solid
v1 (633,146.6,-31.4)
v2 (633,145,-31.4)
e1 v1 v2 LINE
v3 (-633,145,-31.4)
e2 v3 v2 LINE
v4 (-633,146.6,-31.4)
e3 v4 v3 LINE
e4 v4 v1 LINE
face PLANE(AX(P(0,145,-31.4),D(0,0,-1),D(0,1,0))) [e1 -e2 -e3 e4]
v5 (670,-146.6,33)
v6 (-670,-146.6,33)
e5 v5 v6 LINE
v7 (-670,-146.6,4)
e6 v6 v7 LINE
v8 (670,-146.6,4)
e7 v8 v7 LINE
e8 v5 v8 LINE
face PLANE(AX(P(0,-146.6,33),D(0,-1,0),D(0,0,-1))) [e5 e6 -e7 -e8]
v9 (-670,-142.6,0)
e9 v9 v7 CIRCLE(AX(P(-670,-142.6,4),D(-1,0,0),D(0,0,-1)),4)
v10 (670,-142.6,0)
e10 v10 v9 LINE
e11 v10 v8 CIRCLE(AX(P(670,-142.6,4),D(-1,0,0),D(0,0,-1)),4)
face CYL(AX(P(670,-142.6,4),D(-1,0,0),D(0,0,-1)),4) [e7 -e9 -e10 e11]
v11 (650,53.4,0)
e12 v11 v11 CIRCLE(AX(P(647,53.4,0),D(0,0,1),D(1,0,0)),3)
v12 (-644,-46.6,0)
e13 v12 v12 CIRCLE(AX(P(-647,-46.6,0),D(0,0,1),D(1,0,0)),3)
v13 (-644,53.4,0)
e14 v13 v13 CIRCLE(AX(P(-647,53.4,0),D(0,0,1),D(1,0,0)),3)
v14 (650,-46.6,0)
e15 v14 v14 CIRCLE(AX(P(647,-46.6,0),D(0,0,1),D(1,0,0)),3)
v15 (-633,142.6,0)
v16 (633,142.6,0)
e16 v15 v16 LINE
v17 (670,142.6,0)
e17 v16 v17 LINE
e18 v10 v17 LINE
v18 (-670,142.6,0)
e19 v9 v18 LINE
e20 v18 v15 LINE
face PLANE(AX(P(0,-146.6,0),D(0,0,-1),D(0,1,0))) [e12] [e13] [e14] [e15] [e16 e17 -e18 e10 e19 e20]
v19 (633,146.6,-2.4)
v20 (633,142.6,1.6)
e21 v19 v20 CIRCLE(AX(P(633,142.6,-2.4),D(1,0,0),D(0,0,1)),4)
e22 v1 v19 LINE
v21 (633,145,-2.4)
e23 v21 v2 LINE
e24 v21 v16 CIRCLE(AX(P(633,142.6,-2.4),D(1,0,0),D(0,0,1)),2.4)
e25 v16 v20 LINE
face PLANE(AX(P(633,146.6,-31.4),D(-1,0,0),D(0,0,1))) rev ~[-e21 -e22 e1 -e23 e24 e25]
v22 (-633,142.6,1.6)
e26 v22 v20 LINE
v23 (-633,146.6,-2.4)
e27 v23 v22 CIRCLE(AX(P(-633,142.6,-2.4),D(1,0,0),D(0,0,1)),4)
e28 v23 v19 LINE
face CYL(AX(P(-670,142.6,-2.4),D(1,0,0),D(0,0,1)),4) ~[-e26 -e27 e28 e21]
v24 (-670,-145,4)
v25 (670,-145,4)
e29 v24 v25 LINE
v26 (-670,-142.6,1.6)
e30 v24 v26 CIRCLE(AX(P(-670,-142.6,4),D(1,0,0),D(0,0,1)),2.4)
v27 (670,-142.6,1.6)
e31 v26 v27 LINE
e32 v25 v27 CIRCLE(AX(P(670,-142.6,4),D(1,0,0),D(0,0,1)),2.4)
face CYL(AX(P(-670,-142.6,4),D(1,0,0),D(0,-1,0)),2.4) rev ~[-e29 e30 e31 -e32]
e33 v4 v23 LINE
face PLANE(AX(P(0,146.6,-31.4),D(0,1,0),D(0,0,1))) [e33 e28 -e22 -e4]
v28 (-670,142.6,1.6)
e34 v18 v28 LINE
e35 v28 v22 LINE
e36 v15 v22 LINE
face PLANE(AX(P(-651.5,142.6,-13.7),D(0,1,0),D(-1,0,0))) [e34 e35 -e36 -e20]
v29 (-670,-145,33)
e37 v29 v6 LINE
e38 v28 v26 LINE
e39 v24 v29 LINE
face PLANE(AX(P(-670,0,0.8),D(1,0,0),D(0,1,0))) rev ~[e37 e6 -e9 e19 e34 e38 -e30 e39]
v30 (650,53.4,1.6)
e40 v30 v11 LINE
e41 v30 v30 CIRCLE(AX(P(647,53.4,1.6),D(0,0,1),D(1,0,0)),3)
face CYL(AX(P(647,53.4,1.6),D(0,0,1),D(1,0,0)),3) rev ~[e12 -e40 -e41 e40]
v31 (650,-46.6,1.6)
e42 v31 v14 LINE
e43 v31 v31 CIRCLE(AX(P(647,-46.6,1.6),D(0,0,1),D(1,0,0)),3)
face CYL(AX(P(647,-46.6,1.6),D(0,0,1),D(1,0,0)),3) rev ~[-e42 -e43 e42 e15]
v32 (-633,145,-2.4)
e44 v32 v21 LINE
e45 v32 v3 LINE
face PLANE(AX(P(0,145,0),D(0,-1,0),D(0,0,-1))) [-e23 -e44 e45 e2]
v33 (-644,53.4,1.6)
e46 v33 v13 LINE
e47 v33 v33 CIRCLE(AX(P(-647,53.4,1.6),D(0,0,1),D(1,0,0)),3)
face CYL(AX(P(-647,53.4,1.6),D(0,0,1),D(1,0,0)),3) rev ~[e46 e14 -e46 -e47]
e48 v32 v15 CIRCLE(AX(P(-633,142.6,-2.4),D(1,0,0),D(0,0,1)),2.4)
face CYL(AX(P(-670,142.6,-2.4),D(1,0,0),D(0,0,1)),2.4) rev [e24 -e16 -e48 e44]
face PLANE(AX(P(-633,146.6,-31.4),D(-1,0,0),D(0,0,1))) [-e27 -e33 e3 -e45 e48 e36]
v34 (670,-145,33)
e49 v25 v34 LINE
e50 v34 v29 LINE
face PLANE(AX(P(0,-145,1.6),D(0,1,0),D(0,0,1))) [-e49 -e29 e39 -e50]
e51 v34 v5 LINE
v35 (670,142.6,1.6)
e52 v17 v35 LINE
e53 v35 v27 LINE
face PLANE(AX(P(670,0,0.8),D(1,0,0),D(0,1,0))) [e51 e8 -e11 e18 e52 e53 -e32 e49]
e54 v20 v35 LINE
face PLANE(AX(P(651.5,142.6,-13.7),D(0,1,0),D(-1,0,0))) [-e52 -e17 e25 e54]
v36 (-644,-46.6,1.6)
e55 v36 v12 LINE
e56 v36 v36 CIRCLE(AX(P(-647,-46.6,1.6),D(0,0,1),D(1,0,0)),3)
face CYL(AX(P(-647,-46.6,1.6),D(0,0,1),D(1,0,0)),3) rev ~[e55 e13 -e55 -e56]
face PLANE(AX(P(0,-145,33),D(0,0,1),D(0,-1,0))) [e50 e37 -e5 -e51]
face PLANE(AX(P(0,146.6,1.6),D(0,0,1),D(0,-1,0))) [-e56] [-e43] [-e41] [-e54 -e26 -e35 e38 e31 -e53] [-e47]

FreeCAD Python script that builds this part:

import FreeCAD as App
import Part
import Sketcher
from FreeCAD import Vector
Q = App.Units.Quantity


def edges_at(feature, points):
    """Names of the edges that pass closest to the given points."""
    edges = feature.Shape.Edges
    near = lambda p: min(range(len(edges)), key=lambda i: edges[i].distToShape(Part.Vertex(*p))[0])
    return sorted({f"Edge{near(p) + 1}" for p in points})

doc = App.newDocument("Part")
body = doc.addObject("PartDesign::Body", "Body")

sketch1 = body.newObject("Sketcher::SketchObject", "Sketch")
sketch1.AttachmentSupport = (doc.getObject("YZ_Plane"), [""])
sketch1.MapMode = "FlatFace"
sketch1.addGeometry(Part.LineSegment(Vector(-146.6, 0, 0), Vector(145, 0, 0)), False)
sketch1.addGeometry(Part.LineSegment(Vector(145, 0, 0), Vector(145, -31.4, 0)), False)
sketch1.addGeometry(Part.LineSegment(Vector(145, -31.4, 0), Vector(146.6, -31.4, 0)), False)
sketch1.addGeometry(Part.LineSegment(Vector(146.6, -31.4, 0), Vector(146.6, 1.6, 0)), False)
sketch1.addGeometry(Part.LineSegment(Vector(146.6, 1.6, 0), Vector(-145, 1.6, 0)), False)
sketch1.addGeometry(Part.LineSegment(Vector(-145, 1.6, 0), Vector(-145, 33, 0)), False)
sketch1.addGeometry(Part.LineSegment(Vector(-145, 33, 0), Vector(-146.6, 33, 0)), False)
sketch1.addGeometry(Part.LineSegment(Vector(-146.6, 33, 0), Vector(-146.6, 0, 0)), False)
sketch1.addConstraint(Sketcher.Constraint("Coincident", 0, 2, 1, 1))
sketch1.addConstraint(Sketcher.Constraint("Coincident", 1, 2, 2, 1))
sketch1.addConstraint(Sketcher.Constraint("Coincident", 2, 2, 3, 1))
sketch1.addConstraint(Sketcher.Constraint("Coincident", 3, 2, 4, 1))
sketch1.addConstraint(Sketcher.Constraint("Coincident", 4, 2, 5, 1))
sketch1.addConstraint(Sketcher.Constraint("Coincident", 5, 2, 6, 1))
sketch1.addConstraint(Sketcher.Constraint("Coincident", 6, 2, 7, 1))
sketch1.addConstraint(Sketcher.Constraint("Coincident", 7, 2, 0, 1))
sketch1.addConstraint(Sketcher.Constraint("Horizontal", 0))
sketch1.addConstraint(Sketcher.Constraint("Vertical", 1))
sketch1.addConstraint(Sketcher.Constraint("Horizontal", 2))
sketch1.addConstraint(Sketcher.Constraint("Vertical", 3))
sketch1.addConstraint(Sketcher.Constraint("Horizontal", 4))
sketch1.addConstraint(Sketcher.Constraint("Vertical", 5))
sketch1.addConstraint(Sketcher.Constraint("Horizontal", 6))
sketch1.addConstraint(Sketcher.Constraint("Vertical", 7))
sketch1.addConstraint(Sketcher.Constraint("PointOnObject", 0, 2, -1))
sketch1.addConstraint(Sketcher.Constraint("Equal", 0, 4))
sketch1.addConstraint(Sketcher.Constraint("Equal", 1, 5))
sketch1.addConstraint(Sketcher.Constraint("DistanceY", 3, 1, 3, 2, Q("33 mm")))
sketch1.addConstraint(Sketcher.Constraint("DistanceX", 0, 1, 0, 2, Q("291.6 mm")))
sketch1.addConstraint(Sketcher.Constraint("DistanceX", 2, 1, 2, 2, Q("1.6 mm")))
sketch1.addConstraint(Sketcher.Constraint("DistanceY", 1, 2, 1, 1, Q("31.4 mm")))
sketch1.addConstraint(Sketcher.Constraint("DistanceX", -1, 1, 0, 2, Q("145 mm")))
pad1 = body.newObject("PartDesign::Pad", "Pad")
pad1.Profile = sketch1
pad1.Length = 1340
pad1.Midplane = True
doc.recompute()

fillet = body.newObject("PartDesign::Fillet", "Fillet")
fillet.Base = (pad1, edges_at(pad1, [(0, -146.6, 0), (0, 146.6, 1.6)]))
fillet.Radius = 4
doc.recompute()

fillet2 = body.newObject("PartDesign::Fillet", "Fillet001")
fillet2.Base = (fillet, edges_at(fillet, [(0, -145, 1.6), (0, 145, 0)]))
fillet2.Radius = 2.4

sketch2 = body.newObject("Sketcher::SketchObject", "Sketch001")
sketch2.AttachmentSupport = (doc.getObject("XZ_Plane"), [""])
sketch2.MapMode = "FlatFace"
sketch2.AttachmentOffset = App.Placement(Vector(0, 0, -146.6), App.Rotation())
sketch2.addGeometry(Part.LineSegment(Vector(670, 4, 0), Vector(670, -31, 0)), False)
sketch2.addGeometry(Part.LineSegment(Vector(670, -31, 0), Vector(633, -31, 0)), False)
sketch2.addGeometry(Part.LineSegment(Vector(633, -31, 0), Vector(633, 4, 0)), False)
sketch2.addGeometry(Part.LineSegment(Vector(633, 4, 0), Vector(670, 4, 0)), False)
sketch2.addGeometry(Part.LineSegment(Vector(-633, 4, 0), Vector(-633, -31, 0)), False)
sketch2.addGeometry(Part.LineSegment(Vector(-633, -31, 0), Vector(-670, -31, 0)), False)
sketch2.addGeometry(Part.LineSegment(Vector(-670, -31, 0), Vector(-670, 4, 0)), False)
sketch2.addGeometry(Part.LineSegment(Vector(-670, 4, 0), Vector(-633, 4, 0)), False)
sketch2.addConstraint(Sketcher.Constraint("Coincident", 0, 2, 1, 1))
sketch2.addConstraint(Sketcher.Constraint("Coincident", 1, 2, 2, 1))
sketch2.addConstraint(Sketcher.Constraint("Coincident", 2, 2, 3, 1))
sketch2.addConstraint(Sketcher.Constraint("Coincident", 3, 2, 0, 1))
sketch2.addConstraint(Sketcher.Constraint("Coincident", 4, 2, 5, 1))
sketch2.addConstraint(Sketcher.Constraint("Coincident", 5, 2, 6, 1))
sketch2.addConstraint(Sketcher.Constraint("Coincident", 6, 2, 7, 1))
sketch2.addConstraint(Sketcher.Constraint("Coincident", 7, 2, 4, 1))
sketch2.addConstraint(Sketcher.Constraint("Vertical", 0))
sketch2.addConstraint(Sketcher.Constraint("Horizontal", 1))
sketch2.addConstraint(Sketcher.Constraint("Vertical", 2))
sketch2.addConstraint(Sketcher.Constraint("Horizontal", 3))
sketch2.addConstraint(Sketcher.Constraint("Vertical", 4))
sketch2.addConstraint(Sketcher.Constraint("Horizontal", 5))
sketch2.addConstraint(Sketcher.Constraint("Vertical", 6))
sketch2.addConstraint(Sketcher.Constraint("Horizontal", 7))
sketch2.addConstraint(Sketcher.Constraint("Symmetric", 1, 2, 4, 2, -2))
sketch2.addConstraint(Sketcher.Constraint("Symmetric", 3, 2, 6, 2, -2))
sketch2.addConstraint(Sketcher.Constraint("DistanceX", 1, 2, 1, 1, Q("37 mm")))
sketch2.addConstraint(Sketcher.Constraint("DistanceY", 0, 2, 0, 1, Q("35.4 mm")))
sketch2.addConstraint(Sketcher.Constraint("DistanceX", -1, 1, 0, 2, Q("670 mm")))
sketch2.addConstraint(Sketcher.Constraint("DistanceY", -1, 1, 2, 2, Q("4 mm")))
pocket1 = body.newObject("PartDesign::Pocket", "Pocket")
pocket1.Profile = sketch2
pocket1.Length = 4
pocket1.Reversed = True

sketch3 = body.newObject("Sketcher::SketchObject", "Sketch002")
sketch3.AttachmentSupport = (doc.getObject("XY_Plane"), [""])
sketch3.MapMode = "FlatFace"
sketch3.AttachmentOffset = App.Placement(Vector(0, 0, 1.6), App.Rotation())
sketch3.addGeometry(Part.Circle(Vector(-647, -46.6, 0), Vector(0, 0, 1), 3), False)
sketch3.addGeometry(Part.Circle(Vector(-647, 53.4, 0), Vector(0, 0, 1), 3), False)
sketch3.addGeometry(Part.Circle(Vector(647, 53.4, 0), Vector(0, 0, 1), 3), False)
sketch3.addGeometry(Part.Circle(Vector(647, -46.6, 0), Vector(0, 0, 1), 3), False)
sketch3.addConstraint(Sketcher.Constraint("Equal", 0, 1))
sketch3.addConstraint(Sketcher.Constraint("Equal", 1, 2))
sketch3.addConstraint(Sketcher.Constraint("Equal", 2, 3))
sketch3.addConstraint(Sketcher.Constraint("Symmetric", 1, 3, 2, 3, -2))
sketch3.addConstraint(Sketcher.Constraint("Symmetric", 0, 3, 3, 3, -2))
sketch3.addConstraint(Sketcher.Constraint("Vertical", 0, 3, 1, 3))
sketch3.addConstraint(Sketcher.Constraint("Diameter", 0, Q("6 mm")))
sketch3.addConstraint(Sketcher.Constraint("DistanceX", 0, 3, -1, 1, Q("647 mm")))
sketch3.addConstraint(Sketcher.Constraint("DistanceY", 0, 3, 1, 3, Q("100 mm")))
sketch3.addConstraint(Sketcher.Constraint("DistanceY", 0, 3, -1, 1, Q("46.6 mm")))
pocket2 = body.newObject("PartDesign::Pocket", "Pocket001")
pocket2.Profile = sketch3
pocket2.Length = 25

doc.recompute()
